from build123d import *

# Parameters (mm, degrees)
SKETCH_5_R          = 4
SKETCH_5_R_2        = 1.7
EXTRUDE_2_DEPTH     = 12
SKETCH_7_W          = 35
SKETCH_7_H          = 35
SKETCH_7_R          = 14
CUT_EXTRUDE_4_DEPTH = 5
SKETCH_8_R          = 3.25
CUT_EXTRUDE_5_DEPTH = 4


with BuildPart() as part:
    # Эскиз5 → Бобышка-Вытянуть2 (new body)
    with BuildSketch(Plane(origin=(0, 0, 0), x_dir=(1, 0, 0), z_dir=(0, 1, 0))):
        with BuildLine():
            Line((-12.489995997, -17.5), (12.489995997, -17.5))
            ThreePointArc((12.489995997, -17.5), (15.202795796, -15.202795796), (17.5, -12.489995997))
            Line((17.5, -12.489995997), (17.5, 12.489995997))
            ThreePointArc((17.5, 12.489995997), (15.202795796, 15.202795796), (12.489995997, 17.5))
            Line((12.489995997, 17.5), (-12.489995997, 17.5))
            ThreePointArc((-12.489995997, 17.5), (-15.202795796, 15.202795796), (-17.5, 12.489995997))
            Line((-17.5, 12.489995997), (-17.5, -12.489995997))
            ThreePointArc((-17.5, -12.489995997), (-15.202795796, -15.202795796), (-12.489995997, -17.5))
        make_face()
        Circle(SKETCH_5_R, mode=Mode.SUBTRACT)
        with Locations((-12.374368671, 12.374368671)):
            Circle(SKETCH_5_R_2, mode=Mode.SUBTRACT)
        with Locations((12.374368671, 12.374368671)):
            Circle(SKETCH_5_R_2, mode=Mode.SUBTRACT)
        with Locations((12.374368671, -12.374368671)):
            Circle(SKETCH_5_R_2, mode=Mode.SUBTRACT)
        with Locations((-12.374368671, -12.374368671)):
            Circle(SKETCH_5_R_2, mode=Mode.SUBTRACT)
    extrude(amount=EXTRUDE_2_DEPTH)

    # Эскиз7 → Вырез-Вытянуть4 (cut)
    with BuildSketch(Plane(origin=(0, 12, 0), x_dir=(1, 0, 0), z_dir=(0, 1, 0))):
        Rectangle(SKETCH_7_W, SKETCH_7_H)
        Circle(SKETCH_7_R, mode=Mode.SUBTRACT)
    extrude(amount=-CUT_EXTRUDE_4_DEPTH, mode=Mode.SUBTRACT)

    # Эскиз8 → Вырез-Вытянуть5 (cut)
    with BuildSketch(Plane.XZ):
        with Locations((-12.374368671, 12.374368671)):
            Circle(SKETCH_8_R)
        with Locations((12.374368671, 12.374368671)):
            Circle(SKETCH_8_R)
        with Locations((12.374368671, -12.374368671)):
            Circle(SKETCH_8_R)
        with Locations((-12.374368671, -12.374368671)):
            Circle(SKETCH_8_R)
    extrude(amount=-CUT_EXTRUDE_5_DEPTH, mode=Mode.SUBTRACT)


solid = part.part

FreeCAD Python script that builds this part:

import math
import FreeCAD as App
import Part
import Sketcher
Q = App.Units.Quantity


def add_polygon(sketch, points):
    """Adds a closed chain of lines whose ends are joined by coincident constraints."""
    first, n = sketch.GeometryCount, len(points)
    for a, b in zip(points, points[1:] + points[:1]):
        sketch.addGeometry(Part.LineSegment(App.Vector(*a, 0), App.Vector(*b, 0)), False)
    for i in range(n):
        sketch.addConstraint(Sketcher.Constraint("Coincident", first + i, 2, first + (i + 1) % n, 1))

doc = App.newDocument("Part")
params = doc.addObject("Spreadsheet::Sheet", "Params")
for row, (alias, value) in enumerate([
    ("sketch1_diameter", "8 mm"),
    ("sketch1_diameter2", "3.4 mm"),
    ("sketch1_radius", "21.5 mm"),
    ("pad1_length", "12 mm"),
    ("sketch2_diameter", "28 mm"),
    ("sketch2_width", "35 mm"),
    ("pocket1_length", "5 mm"),
    ("sketch3_diameter", "6.5 mm"),
    ("pocket2_length", "4 mm"),
], start=1):
    params.set(f"A{row}", alias)
    params.set(f"B{row}", "=" + value)
    params.setAlias(f"B{row}", alias)

body = doc.addObject("PartDesign::Body", "Body")

# Sketch on XZ plane
sketch1 = body.newObject("Sketcher::SketchObject", "Sketch")
sketch1.AttachmentSupport = (doc.getObject("XZ_Plane"), [""])
sketch1.MapMode = "FlatFace"
sketch1.addGeometry([
    Part.LineSegment(App.Vector(-12.5, 17.5, 0), App.Vector(12.5, 17.5, 0)),  # 0
    Part.ArcOfCircle(Part.Circle(App.Vector(0, 0, 0), App.Vector(0, 0, 1), 21.5), math.radians(35.52), math.radians(54.48)),  # 1
    Part.LineSegment(App.Vector(17.5, 12.5, 0), App.Vector(17.5, -12.5, 0)),  # 2
    Part.ArcOfCircle(Part.Circle(App.Vector(0, 0, 0), App.Vector(0, 0, 1), 21.5), math.radians(-54.48), math.radians(-35.52)),  # 3
    Part.LineSegment(App.Vector(12.5, -17.5, 0), App.Vector(-12.5, -17.5, 0)),  # 4
    Part.ArcOfCircle(Part.Circle(App.Vector(0, 0, 0), App.Vector(0, 0, 1), 21.5), math.radians(-144.48), math.radians(-125.52)),  # 5
    Part.LineSegment(App.Vector(-17.5, -12.5, 0), App.Vector(-17.5, 12.5, 0)),  # 6
    Part.ArcOfCircle(Part.Circle(App.Vector(0, 0, 0), App.Vector(0, 0, 1), 21.5), math.radians(125.52), math.radians(144.48)),  # 7
    Part.Circle(App.Vector(-12.4, 12.4, 0), App.Vector(0, 0, 1), 1.7),  # 8
    Part.Circle(App.Vector(0, 0, 0), App.Vector(0, 0, 1), 4),  # 9
    Part.Circle(App.Vector(12.4, 12.4, 0), App.Vector(0, 0, 1), 1.7),  # 10
    Part.Circle(App.Vector(-12.4, -12.4, 0), App.Vector(0, 0, 1), 1.7),  # 11
    Part.Circle(App.Vector(12.4, -12.4, 0), App.Vector(0, 0, 1), 1.7),  # 12
], False)
sketch1.addConstraint([
    Sketcher.Constraint("Coincident", 0, 2, 1, 2),
    Sketcher.Constraint("Coincident", 1, 1, 2, 1),
    Sketcher.Constraint("Coincident", 2, 2, 3, 2),
    Sketcher.Constraint("Coincident", 3, 1, 4, 1),
    Sketcher.Constraint("Coincident", 4, 2, 5, 2),
    Sketcher.Constraint("Coincident", 5, 1, 6, 1),
    Sketcher.Constraint("Coincident", 6, 2, 7, 2),
    Sketcher.Constraint("Coincident", 7, 1, 0, 1),
    Sketcher.Constraint("Horizontal", 0),
    Sketcher.Constraint("Vertical", 2),
    Sketcher.Constraint("Horizontal", 4),
    Sketcher.Constraint("Vertical", 6),
    Sketcher.Constraint("Coincident", 1, 3, -1, 1),
    Sketcher.Constraint("Coincident", 3, 3, -1, 1),
    Sketcher.Constraint("Coincident", 5, 3, -1, 1),
    Sketcher.Constraint("Coincident", 7, 3, -1, 1),
    Sketcher.Constraint("Coincident", 9, 3, -1, 1),
    Sketcher.Constraint("Equal", 1, 3),
    Sketcher.Constraint("Equal", 3, 5),
    Sketcher.Constraint("Equal", 5, 7),
    Sketcher.Constraint("Equal", 8, 10),
    Sketcher.Constraint("Equal", 10, 11),
    Sketcher.Constraint("Equal", 11, 12),
    Sketcher.Constraint("Symmetric", 10, 3, 11, 3, -1, 1),
    Sketcher.Constraint("Symmetric", 8, 3, 12, 3, -1, 1),
    Sketcher.Constraint("Symmetric", 8, 3, 10, 3, -2),
    Sketcher.Constraint("Horizontal", 2, 2, 5, 1),
    Sketcher.Constraint("Vertical", 0, 2, 3, 1),
    Sketcher.Constraint("Equal", 4, 2),
    Sketcher.Constraint("Diameter", 9, Q("8 mm")),
    Sketcher.Constraint("Diameter", 8, Q("3.4 mm")),
    Sketcher.Constraint("Radius", 1, Q("21.5 mm")),
    Sketcher.Constraint("DistanceY", -1, 1, 0, 2, Q("17.5 mm")),
    Sketcher.Constraint("DistanceX", 8, 3, -1, 1, Q("12.374369 mm")),
    Sketcher.Constraint("DistanceY", -1, 1, 8, 3, Q("12.374369 mm")),
])
sketch1.setExpression("Constraints[29]", "Params.sketch1_diameter")
sketch1.setExpression("Constraints[30]", "Params.sketch1_diameter2")
sketch1.setExpression("Constraints[31]", "Params.sketch1_radius")
pad1 = body.newObject("PartDesign::Pad", "Pad")
pad1.Profile = sketch1
pad1.setExpression("Length", "Params.pad1_length")
pad1.Reversed = True

# Sketch on XZ plane
sketch2 = body.newObject("Sketcher::SketchObject", "Sketch001")
sketch2.AttachmentSupport = (doc.getObject("XZ_Plane"), [""])
sketch2.MapMode = "FlatFace"
sketch2.AttachmentOffset = App.Placement(App.Vector(0, 0, -12), App.Rotation())
add_polygon(sketch2, [(-18, -18), (-18, 18), (18, 18), (18, -18)])  # lines 0-3
sketch2.addGeometry(Part.Circle(App.Vector(0, 0, 0), App.Vector(0, 0, 1), 14), False)  # 4
sketch2.addConstraint([
    Sketcher.Constraint("Vertical", 0),
    Sketcher.Constraint("Horizontal", 1),
    Sketcher.Constraint("Vertical", 2),
    Sketcher.Constraint("Horizontal", 3),
    Sketcher.Constraint("Coincident", 4, 3, -1, 1),
    Sketcher.Constraint("Symmetric", 0, 2, 2, 2, -1, 1),
    Sketcher.Constraint("Equal", 3, 0),
    Sketcher.Constraint("Diameter", 4, Q("28 mm")),
    Sketcher.Constraint("DistanceX", 1, 1, 1, 2, Q("35 mm")),
])
sketch2.setExpression("Constraints[11]", "Params.sketch2_diameter")
sketch2.setExpression("Constraints[12]", "Params.sketch2_width")
pocket1 = body.newObject("PartDesign::Pocket", "Pocket")
pocket1.Profile = sketch2
pocket1.setExpression("Length", "Params.pocket1_length")
pocket1.Reversed = True

# Sketch on XZ plane
sketch3 = body.newObject("Sketcher::SketchObject", "Sketch002")
sketch3.AttachmentSupport = (doc.getObject("XZ_Plane"), [""])
sketch3.MapMode = "FlatFace"
sketch3.addGeometry([
    Part.Circle(App.Vector(-12.4, 12.4, 0), App.Vector(0, 0, 1), 3.2),
    Part.Circle(App.Vector(12.4, 12.4, 0), App.Vector(0, 0, 1), 3.2),
    Part.Circle(App.Vector(12.4, -12.4, 0), App.Vector(0, 0, 1), 3.2),
    Part.Circle(App.Vector(-12.4, -12.4, 0), App.Vector(0, 0, 1), 3.2),
], False)
sketch3.addConstraint([
    Sketcher.Constraint("Equal", 0, 1),
    Sketcher.Constraint("Equal", 1, 2),
    Sketcher.Constraint("Equal", 2, 3),
    Sketcher.Constraint("Symmetric", 0, 3, 2, 3, -1, 1),
    Sketcher.Constraint("Symmetric", 1, 3, 3, 3, -1, 1),
    Sketcher.Constraint("Symmetric", 0, 3, 1, 3, -2),
    Sketcher.Constraint("Diameter", 0, Q("6.5 mm")),
    Sketcher.Constraint("DistanceX", 0, 3, -1, 1, Q("12.374369 mm")),
    Sketcher.Constraint("DistanceY", -1, 1, 0, 3, Q("12.374369 mm")),
])
sketch3.setExpression("Constraints[6]", "Params.sketch3_diameter")
pocket2 = body.newObject("PartDesign::Pocket", "Pocket001")
pocket2.Profile = sketch3
pocket2.setExpression("Length", "Params.pocket2_length")

doc.recompute()
